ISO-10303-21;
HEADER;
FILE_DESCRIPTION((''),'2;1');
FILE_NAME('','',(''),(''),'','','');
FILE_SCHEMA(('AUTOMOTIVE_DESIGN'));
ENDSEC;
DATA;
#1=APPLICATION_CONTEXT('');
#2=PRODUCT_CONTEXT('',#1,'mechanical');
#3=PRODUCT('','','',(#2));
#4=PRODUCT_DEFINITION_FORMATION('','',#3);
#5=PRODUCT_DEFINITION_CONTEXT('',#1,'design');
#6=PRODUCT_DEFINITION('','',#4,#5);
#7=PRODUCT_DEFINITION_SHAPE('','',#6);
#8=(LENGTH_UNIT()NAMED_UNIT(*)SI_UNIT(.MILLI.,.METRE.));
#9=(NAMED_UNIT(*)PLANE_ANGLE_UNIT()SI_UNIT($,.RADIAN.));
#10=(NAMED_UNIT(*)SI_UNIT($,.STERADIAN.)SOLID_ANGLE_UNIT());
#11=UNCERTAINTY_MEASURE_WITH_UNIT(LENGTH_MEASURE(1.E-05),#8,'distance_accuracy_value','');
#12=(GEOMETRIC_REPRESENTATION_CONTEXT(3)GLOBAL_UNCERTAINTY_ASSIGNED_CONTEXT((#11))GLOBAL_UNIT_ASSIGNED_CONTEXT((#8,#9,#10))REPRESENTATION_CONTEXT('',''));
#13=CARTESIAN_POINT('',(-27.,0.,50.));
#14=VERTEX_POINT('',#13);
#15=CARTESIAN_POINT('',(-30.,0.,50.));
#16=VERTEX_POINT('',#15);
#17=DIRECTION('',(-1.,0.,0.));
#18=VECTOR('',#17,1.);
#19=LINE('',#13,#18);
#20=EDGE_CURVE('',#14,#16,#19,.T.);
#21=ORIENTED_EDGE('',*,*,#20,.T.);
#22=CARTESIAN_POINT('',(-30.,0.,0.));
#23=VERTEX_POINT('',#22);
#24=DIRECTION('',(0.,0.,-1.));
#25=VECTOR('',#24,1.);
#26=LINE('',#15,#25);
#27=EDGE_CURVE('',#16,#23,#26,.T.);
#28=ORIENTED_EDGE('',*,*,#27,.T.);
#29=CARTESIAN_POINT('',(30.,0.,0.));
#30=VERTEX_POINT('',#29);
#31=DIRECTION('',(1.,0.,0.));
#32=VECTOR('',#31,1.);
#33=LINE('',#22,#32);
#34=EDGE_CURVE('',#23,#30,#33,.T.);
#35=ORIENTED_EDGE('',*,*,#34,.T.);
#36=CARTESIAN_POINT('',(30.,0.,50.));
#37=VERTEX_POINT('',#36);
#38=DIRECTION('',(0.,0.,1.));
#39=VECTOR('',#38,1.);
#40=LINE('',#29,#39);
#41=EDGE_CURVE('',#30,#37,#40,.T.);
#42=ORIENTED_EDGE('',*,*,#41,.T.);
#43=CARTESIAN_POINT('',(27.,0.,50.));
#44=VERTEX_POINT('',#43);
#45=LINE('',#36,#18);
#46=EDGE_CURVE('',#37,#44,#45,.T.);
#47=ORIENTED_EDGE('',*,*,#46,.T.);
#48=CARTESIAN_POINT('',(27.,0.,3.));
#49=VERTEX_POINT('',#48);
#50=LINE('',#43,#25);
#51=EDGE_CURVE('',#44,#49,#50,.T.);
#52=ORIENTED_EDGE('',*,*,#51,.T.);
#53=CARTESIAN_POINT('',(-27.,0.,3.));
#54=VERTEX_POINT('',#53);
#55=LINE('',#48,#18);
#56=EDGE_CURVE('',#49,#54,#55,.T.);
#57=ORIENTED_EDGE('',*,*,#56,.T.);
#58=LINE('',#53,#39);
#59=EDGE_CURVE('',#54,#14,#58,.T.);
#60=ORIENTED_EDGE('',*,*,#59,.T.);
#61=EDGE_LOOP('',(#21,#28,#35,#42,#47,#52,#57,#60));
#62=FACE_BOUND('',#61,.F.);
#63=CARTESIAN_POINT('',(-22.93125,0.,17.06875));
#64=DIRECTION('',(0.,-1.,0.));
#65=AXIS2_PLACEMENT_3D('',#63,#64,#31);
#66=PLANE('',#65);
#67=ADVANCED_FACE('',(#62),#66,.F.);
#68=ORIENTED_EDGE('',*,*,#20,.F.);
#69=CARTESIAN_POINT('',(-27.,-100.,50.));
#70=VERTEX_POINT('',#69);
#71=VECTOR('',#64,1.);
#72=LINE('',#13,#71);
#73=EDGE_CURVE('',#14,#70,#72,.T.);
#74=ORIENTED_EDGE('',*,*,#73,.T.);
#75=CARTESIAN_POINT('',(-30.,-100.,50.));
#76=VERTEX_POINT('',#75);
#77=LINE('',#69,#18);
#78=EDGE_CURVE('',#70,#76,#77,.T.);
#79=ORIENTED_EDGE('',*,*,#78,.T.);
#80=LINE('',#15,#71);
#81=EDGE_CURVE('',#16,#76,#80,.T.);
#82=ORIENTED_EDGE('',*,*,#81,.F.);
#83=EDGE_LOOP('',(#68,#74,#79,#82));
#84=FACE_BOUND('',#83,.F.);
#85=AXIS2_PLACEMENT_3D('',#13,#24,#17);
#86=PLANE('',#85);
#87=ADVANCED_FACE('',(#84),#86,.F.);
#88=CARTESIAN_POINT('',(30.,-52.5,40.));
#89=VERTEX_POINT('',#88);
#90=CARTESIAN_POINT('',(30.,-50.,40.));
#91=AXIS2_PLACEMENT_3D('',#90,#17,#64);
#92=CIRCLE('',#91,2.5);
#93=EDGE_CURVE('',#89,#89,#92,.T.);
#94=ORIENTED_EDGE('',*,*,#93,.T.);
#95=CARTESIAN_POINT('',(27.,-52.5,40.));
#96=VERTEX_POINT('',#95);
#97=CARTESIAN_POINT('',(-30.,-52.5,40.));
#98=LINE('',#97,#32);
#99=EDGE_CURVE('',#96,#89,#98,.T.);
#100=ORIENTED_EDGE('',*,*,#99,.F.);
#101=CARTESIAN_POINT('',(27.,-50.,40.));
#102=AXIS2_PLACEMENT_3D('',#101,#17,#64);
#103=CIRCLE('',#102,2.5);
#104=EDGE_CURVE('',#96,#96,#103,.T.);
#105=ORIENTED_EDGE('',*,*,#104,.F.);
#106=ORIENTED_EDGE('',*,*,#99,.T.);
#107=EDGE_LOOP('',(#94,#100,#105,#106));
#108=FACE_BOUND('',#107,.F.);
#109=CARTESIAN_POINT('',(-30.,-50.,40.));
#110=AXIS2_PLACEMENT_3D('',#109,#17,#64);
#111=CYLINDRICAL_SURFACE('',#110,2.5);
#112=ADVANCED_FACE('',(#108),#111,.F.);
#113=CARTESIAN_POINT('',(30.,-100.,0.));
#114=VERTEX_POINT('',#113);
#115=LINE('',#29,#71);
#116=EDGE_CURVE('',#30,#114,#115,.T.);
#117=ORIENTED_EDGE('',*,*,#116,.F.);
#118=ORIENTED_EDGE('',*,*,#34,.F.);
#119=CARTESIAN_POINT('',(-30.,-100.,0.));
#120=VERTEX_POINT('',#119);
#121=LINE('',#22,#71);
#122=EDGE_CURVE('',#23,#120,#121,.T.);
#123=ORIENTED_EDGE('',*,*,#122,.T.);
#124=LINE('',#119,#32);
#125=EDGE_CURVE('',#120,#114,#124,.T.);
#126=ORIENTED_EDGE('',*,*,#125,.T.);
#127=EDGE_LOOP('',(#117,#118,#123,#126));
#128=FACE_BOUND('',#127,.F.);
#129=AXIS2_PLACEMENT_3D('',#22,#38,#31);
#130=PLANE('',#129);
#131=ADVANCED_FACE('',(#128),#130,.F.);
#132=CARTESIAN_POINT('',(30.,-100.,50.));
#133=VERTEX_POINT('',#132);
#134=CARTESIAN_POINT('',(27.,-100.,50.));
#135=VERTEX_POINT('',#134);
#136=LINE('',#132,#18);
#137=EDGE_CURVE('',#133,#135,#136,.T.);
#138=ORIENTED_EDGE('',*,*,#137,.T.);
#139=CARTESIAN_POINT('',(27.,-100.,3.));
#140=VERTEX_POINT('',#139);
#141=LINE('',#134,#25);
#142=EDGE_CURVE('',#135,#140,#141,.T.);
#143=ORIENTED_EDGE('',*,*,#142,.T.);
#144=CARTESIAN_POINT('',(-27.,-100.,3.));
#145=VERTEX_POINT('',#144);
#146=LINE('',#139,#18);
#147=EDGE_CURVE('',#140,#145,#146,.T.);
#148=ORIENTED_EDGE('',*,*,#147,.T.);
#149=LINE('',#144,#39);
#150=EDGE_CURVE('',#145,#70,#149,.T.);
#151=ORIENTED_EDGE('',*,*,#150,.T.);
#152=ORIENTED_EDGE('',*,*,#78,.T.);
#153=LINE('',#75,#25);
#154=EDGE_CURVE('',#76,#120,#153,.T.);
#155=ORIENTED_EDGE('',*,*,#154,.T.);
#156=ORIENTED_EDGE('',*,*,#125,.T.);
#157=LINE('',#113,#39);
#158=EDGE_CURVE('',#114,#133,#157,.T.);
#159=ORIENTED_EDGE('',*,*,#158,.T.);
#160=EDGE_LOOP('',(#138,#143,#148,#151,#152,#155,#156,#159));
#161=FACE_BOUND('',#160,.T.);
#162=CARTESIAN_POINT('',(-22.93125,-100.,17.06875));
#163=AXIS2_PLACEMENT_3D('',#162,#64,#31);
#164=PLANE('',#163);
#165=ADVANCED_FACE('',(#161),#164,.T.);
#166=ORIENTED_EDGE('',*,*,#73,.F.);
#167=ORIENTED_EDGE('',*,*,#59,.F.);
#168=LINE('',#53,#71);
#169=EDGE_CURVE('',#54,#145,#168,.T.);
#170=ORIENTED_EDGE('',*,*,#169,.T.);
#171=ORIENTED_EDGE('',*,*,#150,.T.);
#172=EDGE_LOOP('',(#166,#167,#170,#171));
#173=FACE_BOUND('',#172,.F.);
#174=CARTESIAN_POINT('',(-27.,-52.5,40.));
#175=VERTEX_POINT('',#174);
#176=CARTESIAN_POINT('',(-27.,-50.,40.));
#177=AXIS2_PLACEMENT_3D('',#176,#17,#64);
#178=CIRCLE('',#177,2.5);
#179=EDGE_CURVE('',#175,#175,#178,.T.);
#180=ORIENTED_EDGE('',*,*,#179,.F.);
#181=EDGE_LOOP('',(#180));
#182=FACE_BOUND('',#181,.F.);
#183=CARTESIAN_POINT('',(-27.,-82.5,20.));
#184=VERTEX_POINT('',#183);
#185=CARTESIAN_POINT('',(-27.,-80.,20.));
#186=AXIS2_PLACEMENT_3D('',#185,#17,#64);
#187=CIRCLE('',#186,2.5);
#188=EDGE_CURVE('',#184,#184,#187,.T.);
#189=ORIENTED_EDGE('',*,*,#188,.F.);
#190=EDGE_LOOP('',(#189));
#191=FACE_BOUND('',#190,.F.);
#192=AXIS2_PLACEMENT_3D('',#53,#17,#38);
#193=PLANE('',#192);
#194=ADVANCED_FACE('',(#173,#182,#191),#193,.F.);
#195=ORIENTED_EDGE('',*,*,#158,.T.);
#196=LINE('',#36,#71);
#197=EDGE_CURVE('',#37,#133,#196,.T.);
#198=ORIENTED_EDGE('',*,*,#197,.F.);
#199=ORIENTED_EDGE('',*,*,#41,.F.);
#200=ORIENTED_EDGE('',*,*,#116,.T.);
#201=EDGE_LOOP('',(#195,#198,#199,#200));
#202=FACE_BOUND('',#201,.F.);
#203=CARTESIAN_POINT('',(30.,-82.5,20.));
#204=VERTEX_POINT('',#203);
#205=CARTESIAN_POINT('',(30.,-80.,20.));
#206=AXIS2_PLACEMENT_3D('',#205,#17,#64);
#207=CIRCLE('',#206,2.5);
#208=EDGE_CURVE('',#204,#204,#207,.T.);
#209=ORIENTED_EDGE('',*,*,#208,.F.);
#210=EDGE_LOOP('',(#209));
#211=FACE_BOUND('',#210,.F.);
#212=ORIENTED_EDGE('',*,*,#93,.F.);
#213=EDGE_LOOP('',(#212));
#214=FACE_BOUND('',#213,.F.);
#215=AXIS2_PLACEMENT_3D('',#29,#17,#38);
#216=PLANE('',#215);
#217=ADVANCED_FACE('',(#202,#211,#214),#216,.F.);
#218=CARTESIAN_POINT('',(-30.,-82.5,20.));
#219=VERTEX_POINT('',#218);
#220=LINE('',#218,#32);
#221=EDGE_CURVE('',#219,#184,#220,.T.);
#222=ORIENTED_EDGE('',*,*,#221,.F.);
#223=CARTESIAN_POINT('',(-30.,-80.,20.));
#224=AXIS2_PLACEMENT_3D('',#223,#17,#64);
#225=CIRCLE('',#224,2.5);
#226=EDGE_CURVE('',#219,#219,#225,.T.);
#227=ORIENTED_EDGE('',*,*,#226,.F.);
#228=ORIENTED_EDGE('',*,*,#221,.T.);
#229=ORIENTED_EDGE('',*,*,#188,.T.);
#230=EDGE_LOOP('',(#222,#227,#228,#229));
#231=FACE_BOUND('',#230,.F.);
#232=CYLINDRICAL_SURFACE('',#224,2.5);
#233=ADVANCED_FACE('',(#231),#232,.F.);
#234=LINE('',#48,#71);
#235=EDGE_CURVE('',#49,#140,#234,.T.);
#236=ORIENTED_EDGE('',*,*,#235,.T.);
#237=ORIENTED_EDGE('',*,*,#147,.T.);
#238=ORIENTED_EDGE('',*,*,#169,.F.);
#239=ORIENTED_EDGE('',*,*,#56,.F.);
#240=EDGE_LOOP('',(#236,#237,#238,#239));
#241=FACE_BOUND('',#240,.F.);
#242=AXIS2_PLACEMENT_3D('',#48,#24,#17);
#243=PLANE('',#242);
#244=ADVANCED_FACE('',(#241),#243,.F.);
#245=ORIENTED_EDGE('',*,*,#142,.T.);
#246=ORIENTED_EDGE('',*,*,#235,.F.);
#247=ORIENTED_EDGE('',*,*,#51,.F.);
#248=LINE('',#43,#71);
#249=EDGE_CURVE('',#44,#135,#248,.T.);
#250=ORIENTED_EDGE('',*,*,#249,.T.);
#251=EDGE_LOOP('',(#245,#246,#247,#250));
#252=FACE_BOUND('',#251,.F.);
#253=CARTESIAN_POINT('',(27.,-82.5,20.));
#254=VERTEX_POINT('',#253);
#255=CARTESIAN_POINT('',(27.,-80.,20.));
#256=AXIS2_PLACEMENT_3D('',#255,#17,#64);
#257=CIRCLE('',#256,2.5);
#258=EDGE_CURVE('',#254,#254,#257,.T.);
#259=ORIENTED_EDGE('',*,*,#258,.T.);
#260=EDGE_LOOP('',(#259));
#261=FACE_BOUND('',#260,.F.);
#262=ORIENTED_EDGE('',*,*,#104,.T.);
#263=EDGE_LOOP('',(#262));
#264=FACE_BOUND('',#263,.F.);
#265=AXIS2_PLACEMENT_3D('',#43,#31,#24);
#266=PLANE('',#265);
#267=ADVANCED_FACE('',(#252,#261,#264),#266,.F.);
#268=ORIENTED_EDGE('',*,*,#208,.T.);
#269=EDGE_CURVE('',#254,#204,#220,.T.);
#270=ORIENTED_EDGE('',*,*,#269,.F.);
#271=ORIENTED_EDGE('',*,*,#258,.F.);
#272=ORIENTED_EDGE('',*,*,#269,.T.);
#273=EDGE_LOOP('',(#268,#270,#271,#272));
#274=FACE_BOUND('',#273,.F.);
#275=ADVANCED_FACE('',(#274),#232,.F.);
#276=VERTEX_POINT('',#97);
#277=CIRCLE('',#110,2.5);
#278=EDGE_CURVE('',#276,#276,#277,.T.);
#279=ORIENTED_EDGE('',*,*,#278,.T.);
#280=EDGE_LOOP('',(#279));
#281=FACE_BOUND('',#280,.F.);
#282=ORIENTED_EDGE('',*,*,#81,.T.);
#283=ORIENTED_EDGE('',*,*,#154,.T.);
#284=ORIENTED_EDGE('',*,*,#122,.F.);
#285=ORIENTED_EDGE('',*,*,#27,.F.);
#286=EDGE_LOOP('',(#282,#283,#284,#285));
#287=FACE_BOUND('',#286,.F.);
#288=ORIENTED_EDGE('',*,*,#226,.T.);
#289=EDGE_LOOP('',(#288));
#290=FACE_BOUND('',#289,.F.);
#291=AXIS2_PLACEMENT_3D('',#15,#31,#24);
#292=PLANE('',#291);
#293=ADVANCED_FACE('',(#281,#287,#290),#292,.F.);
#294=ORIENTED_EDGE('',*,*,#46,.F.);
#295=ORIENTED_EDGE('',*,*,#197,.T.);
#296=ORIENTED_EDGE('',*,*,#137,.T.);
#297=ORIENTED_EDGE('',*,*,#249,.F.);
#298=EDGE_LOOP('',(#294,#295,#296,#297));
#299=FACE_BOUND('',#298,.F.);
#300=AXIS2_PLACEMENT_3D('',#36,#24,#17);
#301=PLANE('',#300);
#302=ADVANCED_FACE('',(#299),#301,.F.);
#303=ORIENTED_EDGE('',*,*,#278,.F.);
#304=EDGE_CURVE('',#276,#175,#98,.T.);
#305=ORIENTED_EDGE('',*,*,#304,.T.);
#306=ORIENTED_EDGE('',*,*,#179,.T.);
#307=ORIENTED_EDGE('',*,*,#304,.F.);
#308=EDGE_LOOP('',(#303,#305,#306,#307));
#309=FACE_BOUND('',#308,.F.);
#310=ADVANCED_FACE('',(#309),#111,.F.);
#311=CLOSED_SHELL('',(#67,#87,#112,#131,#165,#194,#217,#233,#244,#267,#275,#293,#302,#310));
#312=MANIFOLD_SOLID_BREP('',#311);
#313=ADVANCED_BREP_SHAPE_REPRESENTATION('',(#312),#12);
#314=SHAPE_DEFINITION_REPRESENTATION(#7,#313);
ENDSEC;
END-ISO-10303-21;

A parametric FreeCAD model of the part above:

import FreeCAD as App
import Part
import Sketcher

V = App.Vector
Q = App.Units.Quantity

doc = App.newDocument("Part")
params = doc.addObject("Spreadsheet::Sheet", "Params")
for row, (alias, value) in enumerate([
    ("sketch1_width", "60 mm"),
    ("sketch1_width2", "3 mm"),
    ("sketch1_height", "50 mm"),
    ("sketch1_height2", "47 mm"),
    ("pad1_length", "100 mm"),
    ("sketch2_diameter", "5 mm"),
], start=1):
    params.set(f"A{row}", alias)
    params.set(f"B{row}", "=" + value)
    params.setAlias(f"B{row}", alias)

body = doc.addObject("PartDesign::Body", "Body")

sketch1 = body.newObject("Sketcher::SketchObject", "Sketch")
sketch1.AttachmentSupport = (doc.getObject("XZ_Plane"), [""])
sketch1.MapMode = "FlatFace"
sketch1.addGeometry([
    Part.LineSegment(V(-30, 0, 0), V(30, 0, 0)),
    Part.LineSegment(V(30, 0, 0), V(30, 50, 0)),
    Part.LineSegment(V(30, 50, 0), V(27, 50, 0)),
    Part.LineSegment(V(27, 50, 0), V(27, 3, 0)),
    Part.LineSegment(V(27, 3, 0), V(-27, 3, 0)),
    Part.LineSegment(V(-27, 3, 0), V(-27, 50, 0)),
    Part.LineSegment(V(-27, 50, 0), V(-30, 50, 0)),
    Part.LineSegment(V(-30, 50, 0), V(-30, 0, 0)),
], False)
sketch1.addConstraint([
    Sketcher.Constraint("Coincident", 0, 2, 1, 1),
    Sketcher.Constraint("Coincident", 1, 2, 2, 1),
    Sketcher.Constraint("Coincident", 2, 2, 3, 1),
    Sketcher.Constraint("Coincident", 3, 2, 4, 1),
    Sketcher.Constraint("Coincident", 4, 2, 5, 1),
    Sketcher.Constraint("Coincident", 5, 2, 6, 1),
    Sketcher.Constraint("Coincident", 6, 2, 7, 1),
    Sketcher.Constraint("Coincident", 7, 2, 0, 1),
    Sketcher.Constraint("Horizontal", 0),
    Sketcher.Constraint("Vertical", 1),
    Sketcher.Constraint("Horizontal", 2),
    Sketcher.Constraint("Vertical", 3),
    Sketcher.Constraint("Horizontal", 4),
    Sketcher.Constraint("Vertical", 5),
    Sketcher.Constraint("Horizontal", 6),
    Sketcher.Constraint("Vertical", 7),
    Sketcher.Constraint("Symmetric", 0, 2, 7, 2, -1, 1),
    Sketcher.Constraint("Symmetric", 2, 2, 5, 2, -2),
    Sketcher.Constraint("DistanceX", 0, 1, 0, 2, Q("60 mm")),
    Sketcher.Constraint("DistanceX", 2, 2, 2, 1, Q("3 mm")),
    Sketcher.Constraint("DistanceY", 1, 1, 1, 2, Q("50 mm")),
    Sketcher.Constraint("DistanceY", 3, 2, 3, 1, Q("47 mm")),
])
sketch1.setExpression("Constraints[18]", "Params.sketch1_width")
sketch1.setExpression("Constraints[19]", "Params.sketch1_width2")
sketch1.setExpression("Constraints[20]", "Params.sketch1_height")
sketch1.setExpression("Constraints[21]", "Params.sketch1_height2")
pad1 = body.newObject("PartDesign::Pad", "Pad")
pad1.Profile = sketch1
pad1.setExpression("Length", "Params.pad1_length")

sketch2 = body.newObject("Sketcher::SketchObject", "Sketch001")
sketch2.AttachmentSupport = (doc.getObject("YZ_Plane"), [""])
sketch2.MapMode = "FlatFace"
sketch2.AttachmentOffset = App.Placement(V(0, 0, -30), App.Rotation())
sketch2.addGeometry([
    Part.Circle(V(-80, 20, 0), V(0, 0, 1), 2.5),
    Part.Circle(V(-50, 40, 0), V(0, 0, 1), 2.5),
], False)
sketch2.addConstraint([
    Sketcher.Constraint("Equal", 0, 1),
    Sketcher.Constraint("Diameter", 0, Q("5 mm")),
    Sketcher.Constraint("DistanceX", 0, 3, -1, 1, Q("80 mm")),
    Sketcher.Constraint("DistanceY", -1, 1, 0, 3, Q("20 mm")),
    Sketcher.Constraint("DistanceX", 1, 3, -1, 1, Q("50 mm")),
    Sketcher.Constraint("DistanceY", -1, 1, 1, 3, Q("40 mm")),
])
sketch2.setExpression("Constraints[1]", "Params.sketch2_diameter")
pocket1 = body.newObject("PartDesign::Pocket", "Pocket")
pocket1.Profile = sketch2
pocket1.Type = "ThroughAll"
pocket1.Reversed = True

doc.recompute()
